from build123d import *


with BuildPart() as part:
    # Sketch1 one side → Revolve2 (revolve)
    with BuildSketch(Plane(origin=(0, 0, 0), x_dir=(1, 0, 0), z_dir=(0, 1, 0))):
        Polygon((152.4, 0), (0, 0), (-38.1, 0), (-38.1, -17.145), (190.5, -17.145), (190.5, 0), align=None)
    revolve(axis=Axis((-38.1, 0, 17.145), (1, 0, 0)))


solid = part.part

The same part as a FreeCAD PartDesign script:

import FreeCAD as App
import Part
import Sketcher
Q = App.Units.Quantity

doc = App.newDocument("Part")
body = doc.addObject("PartDesign::Body", "Body")

sketch1 = doc.addObject("Sketcher::SketchObject", "Sketch")
body.addObject(sketch1)
sketch1.AttachmentSupport = (doc.XZ_Plane, [""])
sketch1.MapMode = "FlatFace"
sketch1.addGeometry(Part.LineSegment(App.Vector(-38.1, 0, 0), App.Vector(-38.1, 17.145, 0)), False)
sketch1.addGeometry(Part.LineSegment(App.Vector(-38.1, 17.145, 0), App.Vector(190.5, 17.145, 0)), False)
sketch1.addGeometry(Part.LineSegment(App.Vector(190.5, 17.145, 0), App.Vector(190.5, 0, 0)), False)
sketch1.addGeometry(Part.LineSegment(App.Vector(190.5, 0, 0), App.Vector(-38.1, 0, 0)), False)
sketch1.addGeometry(Part.LineSegment(App.Vector(-38.1, 17.145, 0), App.Vector(190.5, 17.145, 0)), True)
sketch1.addConstraint(Sketcher.Constraint("Coincident", 0, 2, 1, 1))
sketch1.addConstraint(Sketcher.Constraint("Coincident", 1, 2, 2, 1))
sketch1.addConstraint(Sketcher.Constraint("Coincident", 2, 2, 3, 1))
sketch1.addConstraint(Sketcher.Constraint("Coincident", 3, 2, 0, 1))
sketch1.addConstraint(Sketcher.Constraint("Vertical", 0))
sketch1.addConstraint(Sketcher.Constraint("Horizontal", 1))
sketch1.addConstraint(Sketcher.Constraint("Vertical", 2))
sketch1.addConstraint(Sketcher.Constraint("Horizontal", 3))
sketch1.addConstraint(Sketcher.Constraint("Horizontal", 4))
sketch1.addConstraint(Sketcher.Constraint("Coincident", 4, 1, 0, 2))
sketch1.addConstraint(Sketcher.Constraint("PointOnObject", 2, 2, -1))
sketch1.addConstraint(Sketcher.Constraint("Vertical", 2, 2, 4, 2))
sketch1.addConstraint(Sketcher.Constraint("DistanceX", 1, 1, 1, 2, Q("9 in")))
sketch1.addConstraint(Sketcher.Constraint("DistanceX", 0, 2, -1, 1, Q("1.5 in")))
sketch1.addConstraint(Sketcher.Constraint("DistanceY", 0, 1, 0, 2, Q("0.675 in")))
revolution = doc.addObject("PartDesign::Revolution", "Revolution")
body.addObject(revolution)
revolution.Profile = sketch1
revolution.ReferenceAxis = (sketch1, ["Axis0"])
revolution.Angle = 360

doc.recompute()
